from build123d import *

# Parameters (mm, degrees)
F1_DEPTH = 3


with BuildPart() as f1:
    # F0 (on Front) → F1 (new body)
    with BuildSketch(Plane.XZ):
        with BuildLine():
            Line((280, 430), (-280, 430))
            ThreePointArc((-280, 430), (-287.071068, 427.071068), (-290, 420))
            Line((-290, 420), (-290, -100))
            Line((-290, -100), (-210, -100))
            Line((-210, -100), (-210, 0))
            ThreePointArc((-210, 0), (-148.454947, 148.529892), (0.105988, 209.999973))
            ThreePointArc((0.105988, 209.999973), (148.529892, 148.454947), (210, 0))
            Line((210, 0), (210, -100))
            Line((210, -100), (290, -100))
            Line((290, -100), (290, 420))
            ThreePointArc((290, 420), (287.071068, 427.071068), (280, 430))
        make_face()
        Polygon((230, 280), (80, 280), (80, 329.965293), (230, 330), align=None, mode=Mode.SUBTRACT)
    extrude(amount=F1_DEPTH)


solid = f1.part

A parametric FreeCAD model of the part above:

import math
import FreeCAD as App
import Part
import Sketcher
Q = App.Units.Quantity

doc = App.newDocument("Part")
params = doc.addObject("Spreadsheet::Sheet", "Params")
for row, (alias, value) in enumerate([
    ("sketch1_radius", "9.999999 mm"),
    ("sketch1_radius2", "209.999999 mm"),
    ("sketch1_width", "560 mm"),
    ("sketch1_width2", "150 mm"),
    ("sketch1_height", "520 mm"),
    ("pad1_length", "3 mm"),
], start=1):
    params.set(f"A{row}", alias)
    params.set(f"B{row}", "=" + value)
    params.setAlias(f"B{row}", alias)

body = doc.addObject("PartDesign::Body", "Body")

# Sketch on XZ plane
sketch1 = doc.addObject("Sketcher::SketchObject", "Sketch")
body.addObject(sketch1)
sketch1.AttachmentSupport = (doc.XZ_Plane, [""])
sketch1.MapMode = "FlatFace"
sketch1.addGeometry([
    Part.LineSegment(App.Vector(280, 430, 0), App.Vector(-280, 430, 0)),  # 0
    Part.ArcOfCircle(Part.Circle(App.Vector(-280, 420, 0), App.Vector(0, 0, 1), 10), math.radians(90), math.radians(180)),  # 1
    Part.LineSegment(App.Vector(-290, 420, 0), App.Vector(-290, -100, 0)),  # 2
    Part.LineSegment(App.Vector(-290, -100, 0), App.Vector(-210, -100, 0)),  # 3
    Part.LineSegment(App.Vector(-210, -100, 0), App.Vector(-210, 0, 0)),  # 4
    Part.ArcOfCircle(Part.Circle(App.Vector(0, 0, 0), App.Vector(0, 0, 1), 210), math.radians(90), math.radians(180)),  # 5
    Part.ArcOfCircle(Part.Circle(App.Vector(0, 0, 0), App.Vector(0, 0, 1), 210), math.radians(0), math.radians(90)),  # 6
    Part.LineSegment(App.Vector(210, 0, 0), App.Vector(210, -100, 0)),  # 7
    Part.LineSegment(App.Vector(210, -100, 0), App.Vector(290, -100, 0)),  # 8
    Part.LineSegment(App.Vector(290, -100, 0), App.Vector(290, 420, 0)),  # 9
    Part.ArcOfCircle(Part.Circle(App.Vector(280, 420, 0), App.Vector(0, 0, 1), 10), math.radians(0), math.radians(90)),  # 10
    Part.LineSegment(App.Vector(230, 330, 0), App.Vector(230, 280, 0)),  # 11
    Part.LineSegment(App.Vector(230, 280, 0), App.Vector(80, 280, 0)),  # 12
    Part.LineSegment(App.Vector(80, 280, 0), App.Vector(80, 330, 0)),  # 13
    Part.LineSegment(App.Vector(80, 330, 0), App.Vector(230, 330, 0)),  # 14
], False)
sketch1.addConstraint([
    Sketcher.Constraint("Tangent", 0, 2, 1, 1),
    Sketcher.Constraint("Tangent", 1, 2, 2, 1),
    Sketcher.Constraint("Coincident", 2, 2, 3, 1),
    Sketcher.Constraint("Coincident", 3, 2, 4, 1),
    Sketcher.Constraint("Tangent", 4, 2, 5, 2),
    Sketcher.Constraint("Tangent", 5, 1, 6, 2),
    Sketcher.Constraint("Tangent", 6, 1, 7, 1),
    Sketcher.Constraint("Coincident", 7, 2, 8, 1),
    Sketcher.Constraint("Coincident", 8, 2, 9, 1),
    Sketcher.Constraint("Tangent", 9, 2, 10, 1),
    Sketcher.Constraint("Tangent", 10, 2, 0, 1),
    Sketcher.Constraint("Coincident", 11, 2, 12, 1),
    Sketcher.Constraint("Coincident", 12, 2, 13, 1),
    Sketcher.Constraint("Coincident", 13, 2, 14, 1),
    Sketcher.Constraint("Coincident", 14, 2, 11, 1),
    Sketcher.Constraint("Horizontal", 0),
    Sketcher.Constraint("Vertical", 2),
    Sketcher.Constraint("Horizontal", 3),
    Sketcher.Constraint("Vertical", 4),
    Sketcher.Constraint("Vertical", 7),
    Sketcher.Constraint("Horizontal", 8),
    Sketcher.Constraint("Vertical", 9),
    Sketcher.Constraint("Vertical", 11),
    Sketcher.Constraint("Horizontal", 12),
    Sketcher.Constraint("Vertical", 13),
    Sketcher.Constraint("Coincident", 5, 3, -1, 1),
    Sketcher.Constraint("Equal", 5, 6),
    Sketcher.Constraint("Equal", 1, 10),
    Sketcher.Constraint("Symmetric", 2, 2, 8, 2, -2),
    Sketcher.Constraint("Radius", 1, Q("9.999999 mm")),
    Sketcher.Constraint("Radius", 5, Q("209.999999 mm")),
    Sketcher.Constraint("DistanceX", 0, 2, 0, 1, Q("560 mm")),
    Sketcher.Constraint("DistanceX", 12, 2, 12, 1, Q("150 mm")),
    Sketcher.Constraint("DistanceY", 2, 2, 2, 1, Q("520 mm")),
    Sketcher.Constraint("DistanceY", 4, 1, 4, 2, Q("100 mm")),
    Sketcher.Constraint("DistanceY", 11, 2, 11, 1, Q("50 mm")),
    Sketcher.Constraint("DistanceX", -1, 1, 11, 2, Q("230 mm")),
    Sketcher.Constraint("DistanceY", -1, 1, 11, 2, Q("280 mm")),
    Sketcher.Constraint("DistanceY", 13, 1, 13, 2, Q("49.965293 mm")),
    Sketcher.Constraint("DistanceX", -1, 1, 5, 1, Q("0.105988 mm")),
])
sketch1.setExpression("Constraints[29]", "Params.sketch1_radius")
sketch1.setExpression("Constraints[30]", "Params.sketch1_radius2")
sketch1.setExpression("Constraints[31]", "Params.sketch1_width")
sketch1.setExpression("Constraints[32]", "Params.sketch1_width2")
sketch1.setExpression("Constraints[33]", "Params.sketch1_height")
pad1 = doc.addObject("PartDesign::Pad", "Pad")
body.addObject(pad1)
pad1.Profile = sketch1
pad1.setExpression("Length", "Params.pad1_length")

doc.recompute()
